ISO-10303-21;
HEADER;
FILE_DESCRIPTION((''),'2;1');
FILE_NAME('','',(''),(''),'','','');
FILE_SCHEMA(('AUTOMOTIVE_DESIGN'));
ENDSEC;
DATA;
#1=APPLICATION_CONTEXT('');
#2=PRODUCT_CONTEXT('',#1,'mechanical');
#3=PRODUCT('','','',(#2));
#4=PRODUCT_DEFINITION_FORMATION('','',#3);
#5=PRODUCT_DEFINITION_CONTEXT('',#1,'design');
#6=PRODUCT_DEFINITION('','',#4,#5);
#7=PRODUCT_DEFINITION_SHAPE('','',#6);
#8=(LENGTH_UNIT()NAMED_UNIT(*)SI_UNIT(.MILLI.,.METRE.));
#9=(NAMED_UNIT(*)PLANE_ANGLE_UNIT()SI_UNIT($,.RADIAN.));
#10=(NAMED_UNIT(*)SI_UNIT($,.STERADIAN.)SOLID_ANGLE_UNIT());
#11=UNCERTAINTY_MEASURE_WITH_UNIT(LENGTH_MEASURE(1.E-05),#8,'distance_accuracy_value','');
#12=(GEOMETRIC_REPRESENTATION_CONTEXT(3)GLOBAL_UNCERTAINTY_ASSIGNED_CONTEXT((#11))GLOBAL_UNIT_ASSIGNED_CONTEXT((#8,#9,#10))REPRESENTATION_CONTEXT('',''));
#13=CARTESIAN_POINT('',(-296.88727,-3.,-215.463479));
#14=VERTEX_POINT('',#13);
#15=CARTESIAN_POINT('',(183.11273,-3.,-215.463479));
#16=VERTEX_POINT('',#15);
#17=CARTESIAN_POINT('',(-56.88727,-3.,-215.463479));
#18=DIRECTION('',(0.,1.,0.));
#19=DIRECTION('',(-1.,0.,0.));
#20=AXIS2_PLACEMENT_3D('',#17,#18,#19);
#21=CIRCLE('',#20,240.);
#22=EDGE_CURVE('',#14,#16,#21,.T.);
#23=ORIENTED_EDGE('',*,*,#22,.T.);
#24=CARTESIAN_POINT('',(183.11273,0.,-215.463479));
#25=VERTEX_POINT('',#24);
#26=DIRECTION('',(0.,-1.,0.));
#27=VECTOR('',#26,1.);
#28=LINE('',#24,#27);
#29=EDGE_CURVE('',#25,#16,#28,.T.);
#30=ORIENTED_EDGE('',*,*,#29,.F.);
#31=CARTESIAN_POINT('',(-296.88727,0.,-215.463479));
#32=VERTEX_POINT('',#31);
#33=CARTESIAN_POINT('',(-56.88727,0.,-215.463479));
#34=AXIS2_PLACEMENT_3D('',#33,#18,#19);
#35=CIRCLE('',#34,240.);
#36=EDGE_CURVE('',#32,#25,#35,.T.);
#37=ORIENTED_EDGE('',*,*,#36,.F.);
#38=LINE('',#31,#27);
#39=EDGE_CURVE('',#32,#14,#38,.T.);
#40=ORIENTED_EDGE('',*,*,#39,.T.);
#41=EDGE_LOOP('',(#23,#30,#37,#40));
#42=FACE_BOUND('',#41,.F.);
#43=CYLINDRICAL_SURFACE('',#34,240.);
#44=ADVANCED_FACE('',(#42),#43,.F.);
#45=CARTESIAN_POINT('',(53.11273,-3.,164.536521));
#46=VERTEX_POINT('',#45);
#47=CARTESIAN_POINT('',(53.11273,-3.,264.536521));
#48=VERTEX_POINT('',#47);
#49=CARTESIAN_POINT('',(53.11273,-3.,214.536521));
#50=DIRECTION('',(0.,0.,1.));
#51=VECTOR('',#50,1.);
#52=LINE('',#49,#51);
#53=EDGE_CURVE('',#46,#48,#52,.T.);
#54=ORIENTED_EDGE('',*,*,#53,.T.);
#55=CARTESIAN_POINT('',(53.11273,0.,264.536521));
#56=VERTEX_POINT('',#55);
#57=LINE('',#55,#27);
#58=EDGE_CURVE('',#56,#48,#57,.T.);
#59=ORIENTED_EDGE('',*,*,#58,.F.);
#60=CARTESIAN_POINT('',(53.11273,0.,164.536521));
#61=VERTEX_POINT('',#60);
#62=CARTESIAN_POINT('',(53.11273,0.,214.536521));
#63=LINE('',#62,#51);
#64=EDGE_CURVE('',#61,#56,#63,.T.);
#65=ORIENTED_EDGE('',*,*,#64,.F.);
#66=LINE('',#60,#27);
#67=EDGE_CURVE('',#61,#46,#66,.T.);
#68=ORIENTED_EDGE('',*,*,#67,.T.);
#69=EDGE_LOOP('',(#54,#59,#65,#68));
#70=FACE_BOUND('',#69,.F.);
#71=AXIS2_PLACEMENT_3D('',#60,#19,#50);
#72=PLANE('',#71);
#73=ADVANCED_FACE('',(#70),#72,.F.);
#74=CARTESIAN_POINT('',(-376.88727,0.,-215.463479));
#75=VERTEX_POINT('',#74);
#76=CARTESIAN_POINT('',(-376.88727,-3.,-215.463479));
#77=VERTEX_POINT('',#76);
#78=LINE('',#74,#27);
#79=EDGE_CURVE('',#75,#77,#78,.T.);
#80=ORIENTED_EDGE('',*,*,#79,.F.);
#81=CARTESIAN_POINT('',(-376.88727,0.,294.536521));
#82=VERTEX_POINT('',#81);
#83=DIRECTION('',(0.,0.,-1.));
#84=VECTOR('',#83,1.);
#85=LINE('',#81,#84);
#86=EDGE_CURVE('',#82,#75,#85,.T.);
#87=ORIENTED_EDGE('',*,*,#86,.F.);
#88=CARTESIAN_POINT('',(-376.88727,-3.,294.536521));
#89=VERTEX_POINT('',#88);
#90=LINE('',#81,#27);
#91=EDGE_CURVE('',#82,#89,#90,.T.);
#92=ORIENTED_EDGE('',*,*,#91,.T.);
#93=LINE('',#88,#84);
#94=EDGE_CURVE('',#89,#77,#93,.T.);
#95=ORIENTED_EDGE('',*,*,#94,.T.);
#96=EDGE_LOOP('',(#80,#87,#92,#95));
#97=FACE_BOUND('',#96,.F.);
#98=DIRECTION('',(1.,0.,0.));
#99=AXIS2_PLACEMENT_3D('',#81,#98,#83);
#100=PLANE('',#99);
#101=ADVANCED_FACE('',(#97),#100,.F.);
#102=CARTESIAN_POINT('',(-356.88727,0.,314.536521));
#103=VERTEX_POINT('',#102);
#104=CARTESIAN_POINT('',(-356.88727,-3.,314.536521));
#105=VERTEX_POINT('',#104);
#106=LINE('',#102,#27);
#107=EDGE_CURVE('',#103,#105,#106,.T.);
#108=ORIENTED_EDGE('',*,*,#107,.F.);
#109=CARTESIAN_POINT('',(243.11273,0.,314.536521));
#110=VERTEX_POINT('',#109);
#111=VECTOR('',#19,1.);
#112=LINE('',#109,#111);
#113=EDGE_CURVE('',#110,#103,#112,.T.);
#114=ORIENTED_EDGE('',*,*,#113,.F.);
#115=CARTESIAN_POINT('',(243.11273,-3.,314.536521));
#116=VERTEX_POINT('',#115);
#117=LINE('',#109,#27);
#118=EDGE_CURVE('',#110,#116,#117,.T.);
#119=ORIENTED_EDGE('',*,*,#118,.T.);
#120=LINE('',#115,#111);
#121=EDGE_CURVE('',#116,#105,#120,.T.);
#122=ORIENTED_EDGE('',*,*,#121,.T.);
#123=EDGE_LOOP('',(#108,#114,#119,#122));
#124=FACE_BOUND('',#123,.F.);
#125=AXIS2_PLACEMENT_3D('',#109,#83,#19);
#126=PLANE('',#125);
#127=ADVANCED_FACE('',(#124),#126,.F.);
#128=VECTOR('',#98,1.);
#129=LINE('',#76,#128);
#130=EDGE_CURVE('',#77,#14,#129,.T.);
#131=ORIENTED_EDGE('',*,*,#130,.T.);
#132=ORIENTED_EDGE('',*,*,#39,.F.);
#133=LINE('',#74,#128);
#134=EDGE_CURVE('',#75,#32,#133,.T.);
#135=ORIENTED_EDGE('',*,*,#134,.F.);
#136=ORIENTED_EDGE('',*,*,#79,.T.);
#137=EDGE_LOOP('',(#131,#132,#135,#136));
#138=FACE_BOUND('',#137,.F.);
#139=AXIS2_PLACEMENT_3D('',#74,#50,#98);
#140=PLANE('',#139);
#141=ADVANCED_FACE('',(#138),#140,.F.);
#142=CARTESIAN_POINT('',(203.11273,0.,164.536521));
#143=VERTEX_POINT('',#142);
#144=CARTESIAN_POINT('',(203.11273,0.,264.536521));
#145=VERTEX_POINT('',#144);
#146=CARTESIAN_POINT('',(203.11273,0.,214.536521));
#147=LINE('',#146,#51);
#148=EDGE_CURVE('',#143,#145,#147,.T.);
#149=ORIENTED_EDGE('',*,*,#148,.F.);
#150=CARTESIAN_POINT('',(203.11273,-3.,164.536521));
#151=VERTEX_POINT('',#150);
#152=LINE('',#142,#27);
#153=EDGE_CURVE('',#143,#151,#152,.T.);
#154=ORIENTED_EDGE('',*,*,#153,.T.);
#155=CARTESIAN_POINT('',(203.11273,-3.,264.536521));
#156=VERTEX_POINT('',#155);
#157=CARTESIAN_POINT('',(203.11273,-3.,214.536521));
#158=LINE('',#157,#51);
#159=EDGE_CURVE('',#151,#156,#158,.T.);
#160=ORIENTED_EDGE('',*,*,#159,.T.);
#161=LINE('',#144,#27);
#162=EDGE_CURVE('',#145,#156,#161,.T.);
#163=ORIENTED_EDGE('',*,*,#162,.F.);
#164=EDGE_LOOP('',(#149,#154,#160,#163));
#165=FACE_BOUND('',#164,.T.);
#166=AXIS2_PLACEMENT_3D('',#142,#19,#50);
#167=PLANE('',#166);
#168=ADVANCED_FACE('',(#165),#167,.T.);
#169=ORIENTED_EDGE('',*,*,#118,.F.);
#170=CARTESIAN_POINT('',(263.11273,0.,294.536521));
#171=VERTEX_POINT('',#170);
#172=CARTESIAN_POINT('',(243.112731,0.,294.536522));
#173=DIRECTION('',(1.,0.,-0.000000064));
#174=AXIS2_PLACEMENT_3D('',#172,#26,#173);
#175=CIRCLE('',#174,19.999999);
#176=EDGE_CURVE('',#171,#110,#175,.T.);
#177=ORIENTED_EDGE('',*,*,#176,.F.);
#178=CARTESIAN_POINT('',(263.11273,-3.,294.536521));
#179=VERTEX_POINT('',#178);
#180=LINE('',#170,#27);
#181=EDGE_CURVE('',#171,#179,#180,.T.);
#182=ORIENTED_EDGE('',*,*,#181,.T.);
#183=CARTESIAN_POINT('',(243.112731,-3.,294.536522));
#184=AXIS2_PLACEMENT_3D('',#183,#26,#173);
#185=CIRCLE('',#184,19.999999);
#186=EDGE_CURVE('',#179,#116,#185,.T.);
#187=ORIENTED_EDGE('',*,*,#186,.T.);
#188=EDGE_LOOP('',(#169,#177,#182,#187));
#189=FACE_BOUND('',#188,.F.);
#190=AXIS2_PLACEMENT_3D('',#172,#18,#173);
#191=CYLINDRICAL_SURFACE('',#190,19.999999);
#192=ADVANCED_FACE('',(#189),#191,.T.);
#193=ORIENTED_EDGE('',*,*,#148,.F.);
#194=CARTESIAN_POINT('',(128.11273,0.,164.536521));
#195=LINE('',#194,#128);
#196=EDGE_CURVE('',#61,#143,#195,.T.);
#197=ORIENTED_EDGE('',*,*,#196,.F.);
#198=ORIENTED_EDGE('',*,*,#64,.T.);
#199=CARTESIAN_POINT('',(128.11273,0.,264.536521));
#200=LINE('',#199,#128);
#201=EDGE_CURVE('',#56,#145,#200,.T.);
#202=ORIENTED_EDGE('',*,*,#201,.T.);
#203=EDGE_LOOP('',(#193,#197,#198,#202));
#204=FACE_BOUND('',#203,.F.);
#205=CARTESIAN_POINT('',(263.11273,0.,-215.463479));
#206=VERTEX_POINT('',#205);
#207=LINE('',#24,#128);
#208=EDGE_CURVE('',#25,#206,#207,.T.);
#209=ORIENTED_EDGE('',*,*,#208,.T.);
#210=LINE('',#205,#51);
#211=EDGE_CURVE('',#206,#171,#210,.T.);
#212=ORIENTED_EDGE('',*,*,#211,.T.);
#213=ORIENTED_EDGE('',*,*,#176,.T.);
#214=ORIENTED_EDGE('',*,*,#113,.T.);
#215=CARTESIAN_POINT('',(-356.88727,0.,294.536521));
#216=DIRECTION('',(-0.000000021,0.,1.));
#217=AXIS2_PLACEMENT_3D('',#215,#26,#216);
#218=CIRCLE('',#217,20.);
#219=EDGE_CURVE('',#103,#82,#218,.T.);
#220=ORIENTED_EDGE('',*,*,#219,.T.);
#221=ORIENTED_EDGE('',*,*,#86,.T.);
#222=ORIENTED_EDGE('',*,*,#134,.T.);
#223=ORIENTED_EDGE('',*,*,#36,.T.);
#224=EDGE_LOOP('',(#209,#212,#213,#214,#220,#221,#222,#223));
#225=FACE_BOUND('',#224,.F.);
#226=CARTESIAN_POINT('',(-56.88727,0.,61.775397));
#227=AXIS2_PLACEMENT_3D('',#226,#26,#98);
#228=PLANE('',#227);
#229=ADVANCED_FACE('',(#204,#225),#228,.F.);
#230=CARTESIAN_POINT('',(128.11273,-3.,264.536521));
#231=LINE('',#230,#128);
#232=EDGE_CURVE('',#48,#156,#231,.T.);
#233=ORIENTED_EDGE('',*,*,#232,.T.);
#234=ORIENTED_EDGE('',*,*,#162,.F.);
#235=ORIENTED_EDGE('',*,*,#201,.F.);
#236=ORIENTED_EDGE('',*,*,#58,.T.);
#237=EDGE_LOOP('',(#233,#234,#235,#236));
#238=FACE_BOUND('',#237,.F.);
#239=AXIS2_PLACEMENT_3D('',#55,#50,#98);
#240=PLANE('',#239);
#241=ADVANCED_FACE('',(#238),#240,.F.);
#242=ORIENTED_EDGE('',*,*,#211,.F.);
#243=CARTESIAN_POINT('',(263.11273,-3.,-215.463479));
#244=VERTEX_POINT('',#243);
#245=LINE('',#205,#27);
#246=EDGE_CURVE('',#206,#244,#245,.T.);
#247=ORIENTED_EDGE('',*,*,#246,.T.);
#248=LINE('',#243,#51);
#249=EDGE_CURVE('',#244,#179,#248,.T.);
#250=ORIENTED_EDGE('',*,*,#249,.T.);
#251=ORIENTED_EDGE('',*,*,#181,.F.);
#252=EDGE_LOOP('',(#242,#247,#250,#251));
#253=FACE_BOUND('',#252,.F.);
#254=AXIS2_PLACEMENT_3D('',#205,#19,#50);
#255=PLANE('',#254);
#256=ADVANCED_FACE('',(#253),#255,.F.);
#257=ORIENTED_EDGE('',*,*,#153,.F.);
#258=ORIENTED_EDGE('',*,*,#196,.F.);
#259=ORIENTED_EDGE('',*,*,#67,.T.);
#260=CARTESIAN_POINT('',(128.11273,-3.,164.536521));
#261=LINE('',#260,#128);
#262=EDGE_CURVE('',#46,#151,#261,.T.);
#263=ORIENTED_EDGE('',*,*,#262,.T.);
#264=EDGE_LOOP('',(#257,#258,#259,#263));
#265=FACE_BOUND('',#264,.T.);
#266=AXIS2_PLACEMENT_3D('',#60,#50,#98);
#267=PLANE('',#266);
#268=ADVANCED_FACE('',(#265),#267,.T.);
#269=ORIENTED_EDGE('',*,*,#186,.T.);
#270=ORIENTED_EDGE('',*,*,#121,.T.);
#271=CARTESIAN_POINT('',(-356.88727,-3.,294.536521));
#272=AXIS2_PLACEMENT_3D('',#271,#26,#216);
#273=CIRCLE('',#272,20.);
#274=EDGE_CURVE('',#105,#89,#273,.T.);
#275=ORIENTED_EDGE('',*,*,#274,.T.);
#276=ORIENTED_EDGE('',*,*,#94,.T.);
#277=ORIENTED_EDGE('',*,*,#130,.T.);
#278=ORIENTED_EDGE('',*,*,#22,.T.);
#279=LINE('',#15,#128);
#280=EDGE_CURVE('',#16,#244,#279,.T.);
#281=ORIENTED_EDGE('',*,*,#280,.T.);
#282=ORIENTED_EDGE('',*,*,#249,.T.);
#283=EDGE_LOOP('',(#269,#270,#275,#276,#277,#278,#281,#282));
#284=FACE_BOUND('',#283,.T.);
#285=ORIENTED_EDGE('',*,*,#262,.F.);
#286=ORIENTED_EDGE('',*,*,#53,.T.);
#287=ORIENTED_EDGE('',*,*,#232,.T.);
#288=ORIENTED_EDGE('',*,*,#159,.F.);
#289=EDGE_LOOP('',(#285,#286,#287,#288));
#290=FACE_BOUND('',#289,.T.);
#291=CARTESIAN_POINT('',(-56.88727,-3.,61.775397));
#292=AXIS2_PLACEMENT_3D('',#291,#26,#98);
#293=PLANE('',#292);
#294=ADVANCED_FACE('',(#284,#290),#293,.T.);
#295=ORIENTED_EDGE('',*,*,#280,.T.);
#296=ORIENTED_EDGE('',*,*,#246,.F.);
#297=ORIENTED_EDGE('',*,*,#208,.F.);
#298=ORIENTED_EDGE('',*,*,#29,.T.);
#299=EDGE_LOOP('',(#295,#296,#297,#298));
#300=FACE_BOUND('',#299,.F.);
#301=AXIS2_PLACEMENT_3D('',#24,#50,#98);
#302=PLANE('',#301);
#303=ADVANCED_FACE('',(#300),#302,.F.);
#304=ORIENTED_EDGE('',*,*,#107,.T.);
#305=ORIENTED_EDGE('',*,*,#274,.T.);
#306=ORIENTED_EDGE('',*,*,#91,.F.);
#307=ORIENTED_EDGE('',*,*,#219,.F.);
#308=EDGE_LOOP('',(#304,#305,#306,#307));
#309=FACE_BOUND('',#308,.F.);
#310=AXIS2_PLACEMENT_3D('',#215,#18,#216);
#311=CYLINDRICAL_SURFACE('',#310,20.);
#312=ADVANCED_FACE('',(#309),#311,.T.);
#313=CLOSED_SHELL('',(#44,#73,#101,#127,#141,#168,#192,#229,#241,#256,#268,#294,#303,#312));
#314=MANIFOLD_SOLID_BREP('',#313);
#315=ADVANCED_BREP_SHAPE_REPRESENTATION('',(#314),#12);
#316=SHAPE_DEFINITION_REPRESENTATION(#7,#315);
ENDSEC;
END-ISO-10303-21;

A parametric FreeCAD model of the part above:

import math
import FreeCAD as App
import Part
import Sketcher
from FreeCAD import Vector


def add_polygon(sketch, points):
    """Adds a closed chain of lines whose ends are joined by coincident constraints."""
    first, n = sketch.GeometryCount, len(points)
    for a, b in zip(points, points[1:] + points[:1]):
        sketch.addGeometry(Part.LineSegment(App.Vector(*a, 0), App.Vector(*b, 0)), False)
    for i in range(n):
        sketch.addConstraint(Sketcher.Constraint("Coincident", first + i, 2, first + (i + 1) % n, 1))

doc = App.newDocument("Part")
body = doc.addObject("PartDesign::Body", "Body")

# Sketch on XZ plane
sketch1 = body.newObject("Sketcher::SketchObject", "Sketch")
sketch1.AttachmentSupport = (doc.getObject("XZ_Plane"), [""])
sketch1.MapMode = "FlatFace"
sketch1.addGeometry(Part.LineSegment(Vector(243, 315, 0), Vector(-357, 315, 0)), False)  # 0
sketch1.addGeometry(Part.ArcOfCircle(Part.Circle(Vector(-357, 295, 0), Vector(0, 0, 1), 20), math.radians(90), math.radians(180)), False)  # 1
sketch1.addGeometry(Part.LineSegment(Vector(-377, 295, 0), Vector(-377, -215, 0)), False)  # 2
sketch1.addGeometry(Part.LineSegment(Vector(-377, -215, 0), Vector(-297, -215, 0)), False)  # 3
sketch1.addGeometry(Part.ArcOfCircle(Part.Circle(Vector(-57, -215, 0), Vector(0, 0, 1), 240), math.radians(0), math.radians(180)), False)  # 4
sketch1.addGeometry(Part.LineSegment(Vector(183, -215, 0), Vector(263, -215, 0)), False)  # 5
sketch1.addGeometry(Part.LineSegment(Vector(263, -215, 0), Vector(263, 295, 0)), False)  # 6
sketch1.addGeometry(Part.ArcOfCircle(Part.Circle(Vector(243, 295, 0), Vector(0, 0, 1), 20), math.radians(0), math.radians(90)), False)  # 7
add_polygon(sketch1, [(203, 165), (53, 165), (53, 265), (203, 265)])  # lines 8-11
sketch1.addConstraint([
    Sketcher.Constraint("Tangent", 0, 2, 1, 1),
    Sketcher.Constraint("Tangent", 1, 2, 2, 1),
    Sketcher.Constraint("Coincident", 2, 2, 3, 1),
    Sketcher.Constraint("Coincident", 3, 2, 4, 2),
    Sketcher.Constraint("Coincident", 4, 1, 5, 1),
    Sketcher.Constraint("Coincident", 5, 2, 6, 1),
    Sketcher.Constraint("Tangent", 6, 2, 7, 1),
    Sketcher.Constraint("Tangent", 7, 2, 0, 1),
    Sketcher.Constraint("Horizontal", 0),
    Sketcher.Constraint("Vertical", 2),
    Sketcher.Constraint("Horizontal", 3),
    Sketcher.Constraint("Horizontal", 5),
    Sketcher.Constraint("Vertical", 6),
    Sketcher.Constraint("Horizontal", 8),
    Sketcher.Constraint("Vertical", 9),
    Sketcher.Constraint("Horizontal", 10),
    Sketcher.Constraint("Vertical", 11),
    Sketcher.Constraint("Equal", 1, 7),
    Sketcher.Constraint("Horizontal", 4, 3, 2, 2),
    Sketcher.Constraint("Horizontal", 3, 2, 4, 1),
    Sketcher.Constraint("Equal", 3, 5),
    Sketcher.Constraint("Radius", 1, 20.0),
    Sketcher.Constraint("Radius", 4, 240.0),
    Sketcher.Constraint("DistanceX", 0, 2, 0, 1, 600.0),
    Sketcher.Constraint("DistanceX", 8, 2, 8, 1, 150.0),
    Sketcher.Constraint("DistanceY", 2, 2, 2, 1, 510.0),
    Sketcher.Constraint("DistanceY", 9, 1, 9, 2, 100.0),
    Sketcher.Constraint("DistanceX", 8, 2, 7, 3, 190.000001),
    Sketcher.Constraint("DistanceY", 8, 2, 7, 3, 130.000001),
    Sketcher.Constraint("DistanceX", 1, 3, -1, 1, 356.88727),
    Sketcher.Constraint("DistanceY", -1, 1, 1, 3, 294.536521),
])
pad1 = body.newObject("PartDesign::Pad", "Pad")
pad1.Profile = sketch1
pad1.Length = 3

doc.recompute()
